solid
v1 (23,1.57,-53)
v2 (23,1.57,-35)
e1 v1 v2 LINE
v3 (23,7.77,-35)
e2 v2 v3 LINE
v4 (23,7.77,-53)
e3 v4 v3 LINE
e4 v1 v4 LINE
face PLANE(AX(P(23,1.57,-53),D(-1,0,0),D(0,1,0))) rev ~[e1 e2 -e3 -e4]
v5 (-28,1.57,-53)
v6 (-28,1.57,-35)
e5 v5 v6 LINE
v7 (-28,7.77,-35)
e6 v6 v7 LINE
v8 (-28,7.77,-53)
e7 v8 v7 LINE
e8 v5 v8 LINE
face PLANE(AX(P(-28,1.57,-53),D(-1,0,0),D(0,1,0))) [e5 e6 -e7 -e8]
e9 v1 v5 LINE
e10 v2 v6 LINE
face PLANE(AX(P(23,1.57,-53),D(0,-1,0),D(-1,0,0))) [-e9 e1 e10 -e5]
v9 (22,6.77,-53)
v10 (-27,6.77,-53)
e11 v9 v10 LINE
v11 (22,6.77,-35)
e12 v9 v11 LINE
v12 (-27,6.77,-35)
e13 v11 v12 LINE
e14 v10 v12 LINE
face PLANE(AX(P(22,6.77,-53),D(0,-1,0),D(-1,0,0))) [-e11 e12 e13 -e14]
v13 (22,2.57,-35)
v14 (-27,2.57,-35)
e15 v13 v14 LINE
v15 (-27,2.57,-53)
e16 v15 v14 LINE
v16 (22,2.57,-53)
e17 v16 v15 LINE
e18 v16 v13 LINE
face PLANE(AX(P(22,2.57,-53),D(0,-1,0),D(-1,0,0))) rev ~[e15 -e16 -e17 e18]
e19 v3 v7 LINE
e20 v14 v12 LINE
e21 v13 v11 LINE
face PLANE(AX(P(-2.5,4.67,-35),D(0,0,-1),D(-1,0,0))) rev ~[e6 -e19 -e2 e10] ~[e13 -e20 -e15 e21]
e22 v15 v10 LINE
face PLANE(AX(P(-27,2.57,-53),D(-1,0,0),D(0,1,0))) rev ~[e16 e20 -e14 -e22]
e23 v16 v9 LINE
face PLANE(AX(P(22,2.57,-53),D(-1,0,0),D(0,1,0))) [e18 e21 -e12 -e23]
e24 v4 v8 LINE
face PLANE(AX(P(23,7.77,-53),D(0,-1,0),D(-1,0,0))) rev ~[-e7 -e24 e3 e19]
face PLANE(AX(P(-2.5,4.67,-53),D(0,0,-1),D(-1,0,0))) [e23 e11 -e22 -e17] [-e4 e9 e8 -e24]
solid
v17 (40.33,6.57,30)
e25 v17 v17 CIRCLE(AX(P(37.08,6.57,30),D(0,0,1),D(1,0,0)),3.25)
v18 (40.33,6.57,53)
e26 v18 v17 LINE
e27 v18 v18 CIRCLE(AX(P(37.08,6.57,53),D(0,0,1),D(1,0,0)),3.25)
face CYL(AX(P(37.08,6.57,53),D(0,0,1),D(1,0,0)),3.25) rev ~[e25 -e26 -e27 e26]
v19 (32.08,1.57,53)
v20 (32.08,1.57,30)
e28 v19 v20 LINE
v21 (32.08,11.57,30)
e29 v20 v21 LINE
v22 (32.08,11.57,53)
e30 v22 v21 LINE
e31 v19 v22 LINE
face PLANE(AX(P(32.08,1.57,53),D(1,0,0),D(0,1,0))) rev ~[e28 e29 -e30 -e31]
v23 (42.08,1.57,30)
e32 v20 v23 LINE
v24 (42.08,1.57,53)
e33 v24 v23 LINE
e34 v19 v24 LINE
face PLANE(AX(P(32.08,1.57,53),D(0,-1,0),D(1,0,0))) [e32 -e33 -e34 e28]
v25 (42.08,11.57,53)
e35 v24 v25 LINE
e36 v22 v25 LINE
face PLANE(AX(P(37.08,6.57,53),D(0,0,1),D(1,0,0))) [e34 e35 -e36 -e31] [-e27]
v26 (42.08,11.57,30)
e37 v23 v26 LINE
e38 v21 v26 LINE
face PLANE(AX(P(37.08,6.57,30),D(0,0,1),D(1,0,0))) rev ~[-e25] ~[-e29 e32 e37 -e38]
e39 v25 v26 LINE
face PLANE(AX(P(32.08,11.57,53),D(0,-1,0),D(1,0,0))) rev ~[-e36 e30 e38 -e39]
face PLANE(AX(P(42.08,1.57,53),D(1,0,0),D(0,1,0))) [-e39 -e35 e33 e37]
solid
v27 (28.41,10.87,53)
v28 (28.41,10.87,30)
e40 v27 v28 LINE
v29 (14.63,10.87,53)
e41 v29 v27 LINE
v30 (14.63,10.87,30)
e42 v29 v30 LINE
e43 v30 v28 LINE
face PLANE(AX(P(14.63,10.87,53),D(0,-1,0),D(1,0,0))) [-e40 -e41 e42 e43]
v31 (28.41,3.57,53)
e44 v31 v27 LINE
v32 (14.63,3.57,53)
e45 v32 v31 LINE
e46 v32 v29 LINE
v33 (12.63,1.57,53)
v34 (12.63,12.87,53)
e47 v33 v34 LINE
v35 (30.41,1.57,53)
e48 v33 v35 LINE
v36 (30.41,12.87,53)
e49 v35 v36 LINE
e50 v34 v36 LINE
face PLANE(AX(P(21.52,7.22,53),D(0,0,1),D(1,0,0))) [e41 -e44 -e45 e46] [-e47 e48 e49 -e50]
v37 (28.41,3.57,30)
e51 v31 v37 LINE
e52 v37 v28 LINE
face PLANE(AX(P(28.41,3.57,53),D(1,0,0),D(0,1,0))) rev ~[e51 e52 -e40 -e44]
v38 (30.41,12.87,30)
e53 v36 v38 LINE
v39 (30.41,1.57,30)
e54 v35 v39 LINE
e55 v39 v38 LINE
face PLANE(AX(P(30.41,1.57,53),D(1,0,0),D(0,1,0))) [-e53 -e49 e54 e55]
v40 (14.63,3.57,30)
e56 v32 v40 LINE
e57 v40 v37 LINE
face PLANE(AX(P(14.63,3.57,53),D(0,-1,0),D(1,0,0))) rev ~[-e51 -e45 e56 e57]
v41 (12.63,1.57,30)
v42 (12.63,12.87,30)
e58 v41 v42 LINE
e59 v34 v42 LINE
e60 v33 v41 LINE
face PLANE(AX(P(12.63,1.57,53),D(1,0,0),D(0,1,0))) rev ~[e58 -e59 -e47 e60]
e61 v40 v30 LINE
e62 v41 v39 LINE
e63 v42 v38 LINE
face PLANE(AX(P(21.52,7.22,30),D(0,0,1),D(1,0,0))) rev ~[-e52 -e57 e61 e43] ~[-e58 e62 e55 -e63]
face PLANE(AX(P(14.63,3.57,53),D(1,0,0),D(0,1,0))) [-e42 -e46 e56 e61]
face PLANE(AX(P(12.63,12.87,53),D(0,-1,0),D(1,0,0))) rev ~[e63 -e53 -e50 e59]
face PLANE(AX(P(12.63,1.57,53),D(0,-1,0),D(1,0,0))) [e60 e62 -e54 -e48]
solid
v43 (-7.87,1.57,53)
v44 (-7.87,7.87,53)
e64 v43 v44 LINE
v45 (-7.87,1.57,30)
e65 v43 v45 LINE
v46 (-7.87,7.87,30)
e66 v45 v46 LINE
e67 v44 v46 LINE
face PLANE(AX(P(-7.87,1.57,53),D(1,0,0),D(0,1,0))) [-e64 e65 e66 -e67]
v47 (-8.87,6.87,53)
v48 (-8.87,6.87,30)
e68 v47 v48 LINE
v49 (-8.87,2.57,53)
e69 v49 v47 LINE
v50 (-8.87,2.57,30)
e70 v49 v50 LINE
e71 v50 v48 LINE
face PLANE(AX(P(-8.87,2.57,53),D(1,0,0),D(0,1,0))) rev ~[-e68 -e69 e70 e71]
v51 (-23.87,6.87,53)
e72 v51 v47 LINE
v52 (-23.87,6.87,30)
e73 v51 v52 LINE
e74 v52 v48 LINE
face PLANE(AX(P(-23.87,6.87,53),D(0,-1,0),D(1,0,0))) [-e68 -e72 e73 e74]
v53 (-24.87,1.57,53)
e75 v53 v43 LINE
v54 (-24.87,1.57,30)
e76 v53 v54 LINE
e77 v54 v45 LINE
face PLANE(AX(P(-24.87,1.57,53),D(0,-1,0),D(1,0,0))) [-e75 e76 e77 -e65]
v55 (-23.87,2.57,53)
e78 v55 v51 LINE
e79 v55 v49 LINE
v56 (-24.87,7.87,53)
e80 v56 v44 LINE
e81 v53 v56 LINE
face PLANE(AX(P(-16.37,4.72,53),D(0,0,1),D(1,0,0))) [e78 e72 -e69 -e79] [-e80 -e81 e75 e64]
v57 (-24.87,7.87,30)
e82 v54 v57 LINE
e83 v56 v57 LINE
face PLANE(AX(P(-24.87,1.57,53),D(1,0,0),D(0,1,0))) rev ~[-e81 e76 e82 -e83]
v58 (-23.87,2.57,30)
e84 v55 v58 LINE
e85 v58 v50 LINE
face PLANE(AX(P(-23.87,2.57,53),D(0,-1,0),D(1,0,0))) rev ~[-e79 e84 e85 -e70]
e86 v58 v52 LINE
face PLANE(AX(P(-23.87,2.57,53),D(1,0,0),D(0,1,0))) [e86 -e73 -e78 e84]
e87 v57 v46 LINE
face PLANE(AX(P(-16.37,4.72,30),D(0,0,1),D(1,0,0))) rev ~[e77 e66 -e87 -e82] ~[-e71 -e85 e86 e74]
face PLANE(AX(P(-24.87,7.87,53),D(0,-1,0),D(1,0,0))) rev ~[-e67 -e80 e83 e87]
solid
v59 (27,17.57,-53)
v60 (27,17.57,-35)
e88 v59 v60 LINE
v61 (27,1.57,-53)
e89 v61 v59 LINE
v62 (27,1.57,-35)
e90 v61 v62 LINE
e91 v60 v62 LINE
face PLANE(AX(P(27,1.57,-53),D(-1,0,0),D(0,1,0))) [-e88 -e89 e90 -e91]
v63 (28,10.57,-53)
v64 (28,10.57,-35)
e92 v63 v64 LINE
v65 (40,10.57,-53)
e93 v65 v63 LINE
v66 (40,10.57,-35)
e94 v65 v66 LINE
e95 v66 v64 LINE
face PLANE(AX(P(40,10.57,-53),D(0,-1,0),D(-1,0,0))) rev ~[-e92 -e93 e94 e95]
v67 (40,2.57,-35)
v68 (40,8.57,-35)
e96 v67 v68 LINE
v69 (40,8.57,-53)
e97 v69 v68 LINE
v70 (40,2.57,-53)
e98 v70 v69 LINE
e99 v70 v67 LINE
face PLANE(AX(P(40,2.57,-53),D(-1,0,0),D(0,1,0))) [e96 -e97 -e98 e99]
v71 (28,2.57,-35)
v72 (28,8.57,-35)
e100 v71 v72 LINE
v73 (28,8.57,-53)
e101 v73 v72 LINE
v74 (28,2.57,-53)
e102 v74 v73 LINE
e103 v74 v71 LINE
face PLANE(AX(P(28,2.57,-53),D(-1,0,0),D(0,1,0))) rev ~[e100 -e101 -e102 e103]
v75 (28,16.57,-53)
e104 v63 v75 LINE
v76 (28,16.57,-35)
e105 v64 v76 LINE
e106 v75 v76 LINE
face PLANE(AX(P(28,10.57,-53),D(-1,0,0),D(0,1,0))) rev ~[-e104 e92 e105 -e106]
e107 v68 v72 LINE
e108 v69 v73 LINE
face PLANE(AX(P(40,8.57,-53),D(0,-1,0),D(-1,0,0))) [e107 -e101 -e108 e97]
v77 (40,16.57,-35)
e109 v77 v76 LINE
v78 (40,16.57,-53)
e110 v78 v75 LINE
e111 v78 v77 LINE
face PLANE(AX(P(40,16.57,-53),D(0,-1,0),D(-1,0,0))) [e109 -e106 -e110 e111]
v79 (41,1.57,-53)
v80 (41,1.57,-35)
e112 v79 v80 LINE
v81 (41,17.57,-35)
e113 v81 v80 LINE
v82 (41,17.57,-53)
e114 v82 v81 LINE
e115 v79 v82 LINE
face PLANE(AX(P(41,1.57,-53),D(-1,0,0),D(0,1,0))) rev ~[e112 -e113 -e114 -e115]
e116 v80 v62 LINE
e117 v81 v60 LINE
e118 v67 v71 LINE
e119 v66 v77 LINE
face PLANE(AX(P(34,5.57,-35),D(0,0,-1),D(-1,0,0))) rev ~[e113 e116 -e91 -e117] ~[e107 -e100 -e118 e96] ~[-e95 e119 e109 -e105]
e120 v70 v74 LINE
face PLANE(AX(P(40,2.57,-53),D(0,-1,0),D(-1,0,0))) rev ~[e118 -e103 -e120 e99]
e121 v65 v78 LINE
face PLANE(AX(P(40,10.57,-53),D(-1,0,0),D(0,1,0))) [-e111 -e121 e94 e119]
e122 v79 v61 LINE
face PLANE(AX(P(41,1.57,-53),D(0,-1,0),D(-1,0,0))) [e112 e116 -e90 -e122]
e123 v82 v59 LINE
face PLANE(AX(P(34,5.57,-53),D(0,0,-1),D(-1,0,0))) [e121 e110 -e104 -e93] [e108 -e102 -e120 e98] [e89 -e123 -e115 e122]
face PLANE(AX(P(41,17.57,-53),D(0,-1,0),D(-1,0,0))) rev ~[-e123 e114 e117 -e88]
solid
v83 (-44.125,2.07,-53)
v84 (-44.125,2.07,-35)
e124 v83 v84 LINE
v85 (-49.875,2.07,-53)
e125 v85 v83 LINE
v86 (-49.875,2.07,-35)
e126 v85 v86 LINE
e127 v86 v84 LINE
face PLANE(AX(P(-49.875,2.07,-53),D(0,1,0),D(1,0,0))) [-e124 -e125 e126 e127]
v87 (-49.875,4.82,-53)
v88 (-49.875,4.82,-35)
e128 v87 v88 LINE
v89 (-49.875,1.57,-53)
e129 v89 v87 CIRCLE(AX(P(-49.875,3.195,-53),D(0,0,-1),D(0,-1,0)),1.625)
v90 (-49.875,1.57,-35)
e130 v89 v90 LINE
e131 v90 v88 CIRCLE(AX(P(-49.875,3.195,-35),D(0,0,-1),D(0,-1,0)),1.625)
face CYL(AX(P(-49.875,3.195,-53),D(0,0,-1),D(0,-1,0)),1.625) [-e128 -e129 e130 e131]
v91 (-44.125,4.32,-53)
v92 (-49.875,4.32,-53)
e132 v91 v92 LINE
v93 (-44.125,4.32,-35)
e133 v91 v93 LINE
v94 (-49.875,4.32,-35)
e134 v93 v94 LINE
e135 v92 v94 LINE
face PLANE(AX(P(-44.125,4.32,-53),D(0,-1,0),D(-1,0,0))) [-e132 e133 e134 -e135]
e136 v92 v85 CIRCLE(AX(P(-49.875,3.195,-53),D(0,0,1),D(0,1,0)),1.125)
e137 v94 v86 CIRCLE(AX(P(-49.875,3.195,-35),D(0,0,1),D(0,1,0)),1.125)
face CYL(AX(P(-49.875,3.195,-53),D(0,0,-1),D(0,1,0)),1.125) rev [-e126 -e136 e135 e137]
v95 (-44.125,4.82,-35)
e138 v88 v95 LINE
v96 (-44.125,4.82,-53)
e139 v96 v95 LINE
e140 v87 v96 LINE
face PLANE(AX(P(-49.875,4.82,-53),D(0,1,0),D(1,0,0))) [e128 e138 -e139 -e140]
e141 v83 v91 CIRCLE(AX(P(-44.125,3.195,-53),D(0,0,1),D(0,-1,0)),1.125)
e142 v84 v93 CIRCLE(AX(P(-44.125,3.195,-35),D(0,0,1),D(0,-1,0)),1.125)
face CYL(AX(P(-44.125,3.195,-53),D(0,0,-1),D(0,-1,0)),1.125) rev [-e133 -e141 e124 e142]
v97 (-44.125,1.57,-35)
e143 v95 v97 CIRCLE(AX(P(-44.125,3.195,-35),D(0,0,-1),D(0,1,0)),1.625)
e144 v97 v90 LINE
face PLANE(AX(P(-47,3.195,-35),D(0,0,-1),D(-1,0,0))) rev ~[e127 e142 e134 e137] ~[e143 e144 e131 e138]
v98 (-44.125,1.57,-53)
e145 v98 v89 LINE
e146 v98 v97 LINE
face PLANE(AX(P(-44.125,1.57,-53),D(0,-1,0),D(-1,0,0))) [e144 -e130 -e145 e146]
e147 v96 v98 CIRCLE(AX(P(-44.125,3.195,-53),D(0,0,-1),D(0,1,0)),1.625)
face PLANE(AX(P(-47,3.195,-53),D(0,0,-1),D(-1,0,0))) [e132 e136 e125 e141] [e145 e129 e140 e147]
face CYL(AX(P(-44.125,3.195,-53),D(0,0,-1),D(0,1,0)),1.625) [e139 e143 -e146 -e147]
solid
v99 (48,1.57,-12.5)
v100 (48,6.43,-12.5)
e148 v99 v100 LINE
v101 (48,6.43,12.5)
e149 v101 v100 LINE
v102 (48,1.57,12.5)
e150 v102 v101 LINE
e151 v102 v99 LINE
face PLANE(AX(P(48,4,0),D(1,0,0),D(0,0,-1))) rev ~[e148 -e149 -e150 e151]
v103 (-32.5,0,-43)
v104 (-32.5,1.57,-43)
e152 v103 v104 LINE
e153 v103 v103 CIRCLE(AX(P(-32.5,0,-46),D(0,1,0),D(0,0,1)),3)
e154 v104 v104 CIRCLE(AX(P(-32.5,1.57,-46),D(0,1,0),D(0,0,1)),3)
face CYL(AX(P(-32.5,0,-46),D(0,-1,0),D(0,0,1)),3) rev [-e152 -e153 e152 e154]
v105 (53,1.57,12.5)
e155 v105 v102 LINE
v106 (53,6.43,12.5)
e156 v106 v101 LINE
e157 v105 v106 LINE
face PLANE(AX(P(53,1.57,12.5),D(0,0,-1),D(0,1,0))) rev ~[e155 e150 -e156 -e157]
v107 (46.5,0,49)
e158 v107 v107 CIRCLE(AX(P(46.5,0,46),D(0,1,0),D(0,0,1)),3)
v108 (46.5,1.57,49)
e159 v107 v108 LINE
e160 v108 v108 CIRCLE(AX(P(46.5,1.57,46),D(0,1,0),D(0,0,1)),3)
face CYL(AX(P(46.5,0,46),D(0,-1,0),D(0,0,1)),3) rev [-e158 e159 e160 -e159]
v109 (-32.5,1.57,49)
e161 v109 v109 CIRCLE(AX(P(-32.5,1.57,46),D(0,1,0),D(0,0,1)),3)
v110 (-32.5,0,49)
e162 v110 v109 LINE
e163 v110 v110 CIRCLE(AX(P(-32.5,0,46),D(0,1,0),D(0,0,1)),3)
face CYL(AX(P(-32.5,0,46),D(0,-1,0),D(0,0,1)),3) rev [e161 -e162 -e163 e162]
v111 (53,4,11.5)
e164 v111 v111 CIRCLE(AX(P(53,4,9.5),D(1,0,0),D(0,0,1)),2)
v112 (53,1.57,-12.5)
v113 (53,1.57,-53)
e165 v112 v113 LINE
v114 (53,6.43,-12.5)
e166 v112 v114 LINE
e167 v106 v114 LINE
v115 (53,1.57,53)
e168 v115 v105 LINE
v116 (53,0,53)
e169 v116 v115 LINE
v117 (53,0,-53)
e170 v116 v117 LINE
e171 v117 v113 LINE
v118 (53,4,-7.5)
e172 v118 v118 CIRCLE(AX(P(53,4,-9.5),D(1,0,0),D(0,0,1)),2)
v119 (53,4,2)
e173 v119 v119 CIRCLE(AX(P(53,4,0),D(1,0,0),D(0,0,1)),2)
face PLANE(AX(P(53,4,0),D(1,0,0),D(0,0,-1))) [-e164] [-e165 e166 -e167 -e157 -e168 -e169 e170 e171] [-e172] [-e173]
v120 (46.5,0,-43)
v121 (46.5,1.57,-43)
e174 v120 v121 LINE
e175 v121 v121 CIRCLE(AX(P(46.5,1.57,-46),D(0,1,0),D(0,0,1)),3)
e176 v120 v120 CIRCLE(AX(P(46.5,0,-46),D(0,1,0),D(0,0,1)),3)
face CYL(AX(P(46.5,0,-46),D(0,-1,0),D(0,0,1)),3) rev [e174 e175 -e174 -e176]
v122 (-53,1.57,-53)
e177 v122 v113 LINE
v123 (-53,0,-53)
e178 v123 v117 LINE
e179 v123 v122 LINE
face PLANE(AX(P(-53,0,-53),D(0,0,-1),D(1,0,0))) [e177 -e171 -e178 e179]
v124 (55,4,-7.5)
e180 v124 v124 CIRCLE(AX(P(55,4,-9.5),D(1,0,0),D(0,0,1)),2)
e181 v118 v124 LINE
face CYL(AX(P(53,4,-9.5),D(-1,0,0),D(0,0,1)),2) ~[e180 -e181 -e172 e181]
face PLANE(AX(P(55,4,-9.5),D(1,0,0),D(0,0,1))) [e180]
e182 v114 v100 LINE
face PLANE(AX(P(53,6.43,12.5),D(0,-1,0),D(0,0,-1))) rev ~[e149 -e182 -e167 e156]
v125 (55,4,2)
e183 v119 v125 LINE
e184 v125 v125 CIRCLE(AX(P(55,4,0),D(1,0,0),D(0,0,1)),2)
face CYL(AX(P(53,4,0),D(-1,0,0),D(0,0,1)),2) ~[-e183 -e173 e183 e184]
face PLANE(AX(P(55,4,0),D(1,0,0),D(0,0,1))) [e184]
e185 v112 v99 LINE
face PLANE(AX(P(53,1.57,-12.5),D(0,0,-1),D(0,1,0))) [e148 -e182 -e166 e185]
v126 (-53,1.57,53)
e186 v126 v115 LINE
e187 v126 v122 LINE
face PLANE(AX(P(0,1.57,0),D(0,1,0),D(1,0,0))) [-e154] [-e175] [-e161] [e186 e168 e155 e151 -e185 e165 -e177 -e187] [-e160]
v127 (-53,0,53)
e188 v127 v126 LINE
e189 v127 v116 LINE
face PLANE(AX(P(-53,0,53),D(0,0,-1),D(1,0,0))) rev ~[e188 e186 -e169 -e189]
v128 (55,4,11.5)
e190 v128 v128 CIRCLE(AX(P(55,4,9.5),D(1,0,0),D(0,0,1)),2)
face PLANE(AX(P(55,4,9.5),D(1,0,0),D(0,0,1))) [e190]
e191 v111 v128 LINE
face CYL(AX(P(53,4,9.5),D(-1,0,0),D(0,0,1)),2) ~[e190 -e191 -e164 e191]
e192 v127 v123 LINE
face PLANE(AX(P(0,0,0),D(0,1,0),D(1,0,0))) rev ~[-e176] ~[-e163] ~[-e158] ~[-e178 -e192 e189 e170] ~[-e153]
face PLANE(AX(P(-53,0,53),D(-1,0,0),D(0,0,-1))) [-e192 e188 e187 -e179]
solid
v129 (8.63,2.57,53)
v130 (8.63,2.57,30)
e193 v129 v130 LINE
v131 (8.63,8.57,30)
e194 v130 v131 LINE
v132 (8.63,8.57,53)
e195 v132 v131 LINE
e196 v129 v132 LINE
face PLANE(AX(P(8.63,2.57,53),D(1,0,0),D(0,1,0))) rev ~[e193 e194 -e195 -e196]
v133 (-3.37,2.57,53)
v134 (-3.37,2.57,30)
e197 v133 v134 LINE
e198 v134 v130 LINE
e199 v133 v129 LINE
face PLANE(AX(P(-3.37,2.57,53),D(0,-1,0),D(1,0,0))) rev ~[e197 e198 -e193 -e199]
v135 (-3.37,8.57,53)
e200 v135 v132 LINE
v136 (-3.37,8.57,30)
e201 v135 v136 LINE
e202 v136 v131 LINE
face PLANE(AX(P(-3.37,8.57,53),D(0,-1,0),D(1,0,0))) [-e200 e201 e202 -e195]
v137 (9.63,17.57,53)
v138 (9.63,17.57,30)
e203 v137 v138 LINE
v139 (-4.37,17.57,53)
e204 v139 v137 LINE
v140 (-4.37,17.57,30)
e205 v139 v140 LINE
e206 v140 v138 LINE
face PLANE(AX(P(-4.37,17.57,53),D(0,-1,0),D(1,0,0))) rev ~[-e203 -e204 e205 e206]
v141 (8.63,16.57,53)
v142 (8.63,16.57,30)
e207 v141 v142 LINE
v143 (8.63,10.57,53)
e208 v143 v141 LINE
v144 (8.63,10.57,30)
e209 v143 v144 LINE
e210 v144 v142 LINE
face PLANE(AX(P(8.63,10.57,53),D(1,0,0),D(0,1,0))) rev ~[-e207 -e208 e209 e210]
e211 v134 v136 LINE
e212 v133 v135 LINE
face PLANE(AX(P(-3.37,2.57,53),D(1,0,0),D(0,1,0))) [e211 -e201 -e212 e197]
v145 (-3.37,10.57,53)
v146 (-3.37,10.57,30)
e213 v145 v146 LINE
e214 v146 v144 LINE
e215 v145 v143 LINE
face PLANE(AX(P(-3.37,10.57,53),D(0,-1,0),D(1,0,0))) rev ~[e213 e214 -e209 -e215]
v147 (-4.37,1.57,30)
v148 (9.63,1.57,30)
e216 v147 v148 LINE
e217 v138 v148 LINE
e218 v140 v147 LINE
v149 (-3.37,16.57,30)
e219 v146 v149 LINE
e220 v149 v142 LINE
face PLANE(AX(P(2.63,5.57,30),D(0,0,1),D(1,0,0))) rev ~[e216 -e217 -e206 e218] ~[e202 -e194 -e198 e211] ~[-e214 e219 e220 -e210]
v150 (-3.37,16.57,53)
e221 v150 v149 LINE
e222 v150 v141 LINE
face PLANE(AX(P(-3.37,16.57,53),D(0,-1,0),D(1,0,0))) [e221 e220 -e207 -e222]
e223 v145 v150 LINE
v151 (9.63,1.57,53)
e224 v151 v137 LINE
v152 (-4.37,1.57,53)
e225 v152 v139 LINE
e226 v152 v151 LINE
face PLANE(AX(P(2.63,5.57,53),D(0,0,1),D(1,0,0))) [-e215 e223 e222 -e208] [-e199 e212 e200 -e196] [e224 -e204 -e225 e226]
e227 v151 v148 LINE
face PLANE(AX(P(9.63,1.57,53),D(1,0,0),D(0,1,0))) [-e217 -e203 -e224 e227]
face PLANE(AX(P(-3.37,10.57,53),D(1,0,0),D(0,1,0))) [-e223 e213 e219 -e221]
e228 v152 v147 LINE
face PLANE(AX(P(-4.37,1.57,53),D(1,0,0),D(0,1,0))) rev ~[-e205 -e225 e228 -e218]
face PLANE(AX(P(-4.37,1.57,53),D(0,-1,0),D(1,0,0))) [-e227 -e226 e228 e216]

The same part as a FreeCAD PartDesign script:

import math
import FreeCAD as App
import Part
import Sketcher
Q = App.Units.Quantity

doc = App.newDocument("Part")
params = doc.addObject("Spreadsheet::Sheet", "Params")
for row, (alias, value) in enumerate([
    ("sketch1_diameter", "6 mm"),
    ("sketch1_width", "106 mm"),
    ("pad1_length", "1.57 mm"),
    ("sketch2_height", "25 mm"),
    ("sketch2_width", "4.86 mm"),
    ("pad2_length", "5 mm"),
    ("sketch3_diameter", "4 mm"),
    ("pad3_length", "2 mm"),
    ("sketch4_diameter", "6.5 mm"),
    ("sketch4_width", "17 mm"),
    ("sketch4_width2", "15 mm"),
    ("sketch4_width3", "14 mm"),
    ("sketch4_width4", "12 mm"),
    ("pad4_length", "23 mm"),
    ("sketch5_width", "14 mm"),
    ("sketch5_width2", "12 mm"),
    ("sketch5_width3", "51 mm"),
    ("sketch5_width4", "49 mm"),
    ("sketch5_height", "16 mm"),
    ("pad5_length", "18 mm"),
], start=1):
    params.set(f"A{row}", alias)
    params.set(f"B{row}", "=" + value)
    params.setAlias(f"B{row}", alias)

body = doc.addObject("PartDesign::Body", "Body")

# Sketch on XZ plane
sketch1 = body.newObject("Sketcher::SketchObject", "Sketch")
sketch1.AttachmentSupport = (doc.getObject("XZ_Plane"), [""])
sketch1.MapMode = "FlatFace"
sketch1.addGeometry(Part.LineSegment(App.Vector(-53, -53, 0), App.Vector(-53, 53, 0)), False)
sketch1.addGeometry(Part.LineSegment(App.Vector(-53, 53, 0), App.Vector(53, 53, 0)), False)
sketch1.addGeometry(Part.LineSegment(App.Vector(53, 53, 0), App.Vector(53, -53, 0)), False)
sketch1.addGeometry(Part.LineSegment(App.Vector(53, -53, 0), App.Vector(-53, -53, 0)), False)
sketch1.addGeometry(Part.Circle(App.Vector(-32.5, 46, 0), App.Vector(0, 0, 1), 3), False)
sketch1.addGeometry(Part.Circle(App.Vector(46.5, 46, 0), App.Vector(0, 0, 1), 3), False)
sketch1.addGeometry(Part.Circle(App.Vector(-32.5, -46, 0), App.Vector(0, 0, 1), 3), False)
sketch1.addGeometry(Part.Circle(App.Vector(46.5, -46, 0), App.Vector(0, 0, 1), 3), False)
sketch1.addConstraint(Sketcher.Constraint("Coincident", 0, 2, 1, 1))
sketch1.addConstraint(Sketcher.Constraint("Coincident", 1, 2, 2, 1))
sketch1.addConstraint(Sketcher.Constraint("Coincident", 2, 2, 3, 1))
sketch1.addConstraint(Sketcher.Constraint("Coincident", 3, 2, 0, 1))
sketch1.addConstraint(Sketcher.Constraint("Vertical", 0))
sketch1.addConstraint(Sketcher.Constraint("Horizontal", 1))
sketch1.addConstraint(Sketcher.Constraint("Vertical", 2))
sketch1.addConstraint(Sketcher.Constraint("Horizontal", 3))
sketch1.addConstraint(Sketcher.Constraint("Equal", 4, 5))
sketch1.addConstraint(Sketcher.Constraint("Equal", 5, 6))
sketch1.addConstraint(Sketcher.Constraint("Equal", 6, 7))
sketch1.addConstraint(Sketcher.Constraint("Symmetric", 0, 2, 2, 2, -1, 1))
sketch1.addConstraint(Sketcher.Constraint("Symmetric", 4, 3, 6, 3, -1))
sketch1.addConstraint(Sketcher.Constraint("Symmetric", 5, 3, 7, 3, -1))
sketch1.addConstraint(Sketcher.Constraint("Horizontal", 4, 3, 5, 3))
sketch1.addConstraint(Sketcher.Constraint("Equal", 3, 0))
sketch1.addConstraint(Sketcher.Constraint("Diameter", 4, Q("6 mm")))
sketch1.addConstraint(Sketcher.Constraint("DistanceX", 1, 1, 1, 2, Q("106 mm")))
sketch1.addConstraint(Sketcher.Constraint("DistanceY", -1, 1, 4, 3, Q("46 mm")))
sketch1.addConstraint(Sketcher.Constraint("DistanceX", 4, 3, 5, 3, Q("79 mm")))
sketch1.addConstraint(Sketcher.Constraint("DistanceX", 4, 3, -1, 1, Q("32.5 mm")))
sketch1.setExpression("Constraints[16]", "Params.sketch1_diameter")
sketch1.setExpression("Constraints[17]", "Params.sketch1_width")
pad1 = body.newObject("PartDesign::Pad", "Pad")
pad1.Profile = sketch1
pad1.setExpression("Length", "Params.pad1_length")
pad1.Reversed = True

# Sketch on YZ plane
sketch2 = body.newObject("Sketcher::SketchObject", "Sketch001")
sketch2.AttachmentSupport = (doc.getObject("YZ_Plane"), [""])
sketch2.MapMode = "FlatFace"
sketch2.AttachmentOffset = App.Placement(App.Vector(0, 0, 53), App.Rotation())
sketch2.addGeometry(Part.LineSegment(App.Vector(6.4, 12.5, 0), App.Vector(1.6, 12.5, 0)), False)
sketch2.addGeometry(Part.LineSegment(App.Vector(1.6, 12.5, 0), App.Vector(1.6, -12.5, 0)), False)
sketch2.addGeometry(Part.LineSegment(App.Vector(1.6, -12.5, 0), App.Vector(6.4, -12.5, 0)), False)
sketch2.addGeometry(Part.LineSegment(App.Vector(6.4, -12.5, 0), App.Vector(6.4, 12.5, 0)), False)
sketch2.addConstraint(Sketcher.Constraint("Coincident", 0, 2, 1, 1))
sketch2.addConstraint(Sketcher.Constraint("Coincident", 1, 2, 2, 1))
sketch2.addConstraint(Sketcher.Constraint("Coincident", 2, 2, 3, 1))
sketch2.addConstraint(Sketcher.Constraint("Coincident", 3, 2, 0, 1))
sketch2.addConstraint(Sketcher.Constraint("Horizontal", 0))
sketch2.addConstraint(Sketcher.Constraint("Vertical", 1))
sketch2.addConstraint(Sketcher.Constraint("Horizontal", 2))
sketch2.addConstraint(Sketcher.Constraint("Vertical", 3))
sketch2.addConstraint(Sketcher.Constraint("DistanceY", 1, 2, 1, 1, Q("25 mm")))
sketch2.addConstraint(Sketcher.Constraint("DistanceX", 0, 2, 0, 1, Q("4.86 mm")))
sketch2.addConstraint(Sketcher.Constraint("DistanceY", -1, 1, 0, 2, Q("12.5 mm")))
sketch2.addConstraint(Sketcher.Constraint("DistanceX", -1, 1, 0, 2, Q("1.57 mm")))
sketch2.setExpression("Constraints[8]", "Params.sketch2_height")
sketch2.setExpression("Constraints[9]", "Params.sketch2_width")
pad2 = body.newObject("PartDesign::Pad", "Pad001")
pad2.Profile = sketch2
pad2.setExpression("Length", "Params.pad2_length")
pad2.Reversed = True

# Sketch on YZ plane
sketch3 = body.newObject("Sketcher::SketchObject", "Sketch002")
sketch3.AttachmentSupport = (doc.getObject("YZ_Plane"), [""])
sketch3.MapMode = "FlatFace"
sketch3.AttachmentOffset = App.Placement(App.Vector(0, 0, 53), App.Rotation())
sketch3.addGeometry(Part.Circle(App.Vector(4, 9.5, 0), App.Vector(0, 0, 1), 2), False)
sketch3.addGeometry(Part.Circle(App.Vector(4, 0, 0), App.Vector(0, 0, 1), 2), False)
sketch3.addGeometry(Part.Circle(App.Vector(4, -9.5, 0), App.Vector(0, 0, 1), 2), False)
sketch3.addConstraint(Sketcher.Constraint("Equal", 0, 1))
sketch3.addConstraint(Sketcher.Constraint("Equal", 1, 2))
sketch3.addConstraint(Sketcher.Constraint("Symmetric", 0, 3, 2, 3, -1))
sketch3.addConstraint(Sketcher.Constraint("PointOnObject", 1, 3, -1))
sketch3.addConstraint(Sketcher.Constraint("Vertical", 0, 3, 1, 3))
sketch3.addConstraint(Sketcher.Constraint("Diameter", 0, Q("4 mm")))
sketch3.addConstraint(Sketcher.Constraint("DistanceX", -1, 1, 0, 3, Q("4 mm")))
sketch3.addConstraint(Sketcher.Constraint("DistanceY", 2, 3, 0, 3, Q("19 mm")))
sketch3.setExpression("Constraints[5]", "Params.sketch3_diameter")
pad3 = body.newObject("PartDesign::Pad", "Pad002")
pad3.Profile = sketch3
pad3.setExpression("Length", "Params.pad3_length")
body2 = doc.addObject("PartDesign::Body", "Body001")
body2.AllowCompound = True

# Sketch on XY plane
sketch4 = body2.newObject("Sketcher::SketchObject", "Sketch003")
sketch4.AttachmentSupport = (doc.getObject("XY_Plane001"), [""])
sketch4.MapMode = "FlatFace"
sketch4.AttachmentOffset = App.Placement(App.Vector(0, 0, 53), App.Rotation())
sketch4.addGeometry(Part.LineSegment(App.Vector(-24.9, 7.9, 0), App.Vector(-24.9, 1.6, 0)), False)
sketch4.addGeometry(Part.LineSegment(App.Vector(-24.9, 1.6, 0), App.Vector(-7.9, 1.6, 0)), False)
sketch4.addGeometry(Part.LineSegment(App.Vector(-7.9, 1.6, 0), App.Vector(-7.9, 7.9, 0)), False)
sketch4.addGeometry(Part.LineSegment(App.Vector(-7.9, 7.9, 0), App.Vector(-24.9, 7.9, 0)), False)
sketch4.addGeometry(Part.LineSegment(App.Vector(-8.9, 2.6, 0), App.Vector(-23.9, 2.6, 0)), False)
sketch4.addGeometry(Part.LineSegment(App.Vector(-23.9, 2.6, 0), App.Vector(-23.9, 6.9, 0)), False)
sketch4.addGeometry(Part.LineSegment(App.Vector(-23.9, 6.9, 0), App.Vector(-8.9, 6.9, 0)), False)
sketch4.addGeometry(Part.LineSegment(App.Vector(-8.9, 6.9, 0), App.Vector(-8.9, 2.6, 0)), False)
sketch4.addGeometry(Part.LineSegment(App.Vector(-4.4, 1.6, 0), App.Vector(9.6, 1.6, 0)), False)
sketch4.addGeometry(Part.LineSegment(App.Vector(9.6, 1.6, 0), App.Vector(9.6, 17.6, 0)), False)
sketch4.addGeometry(Part.LineSegment(App.Vector(9.6, 17.6, 0), App.Vector(-4.4, 17.6, 0)), False)
sketch4.addGeometry(Part.LineSegment(App.Vector(-4.4, 17.6, 0), App.Vector(-4.4, 1.6, 0)), False)
sketch4.addGeometry(Part.LineSegment(App.Vector(8.6, 2.6, 0), App.Vector(-3.4, 2.6, 0)), False)
sketch4.addGeometry(Part.LineSegment(App.Vector(-3.4, 2.6, 0), App.Vector(-3.4, 8.6, 0)), False)
sketch4.addGeometry(Part.LineSegment(App.Vector(-3.4, 8.6, 0), App.Vector(8.6, 8.6, 0)), False)
sketch4.addGeometry(Part.LineSegment(App.Vector(8.6, 8.6, 0), App.Vector(8.6, 2.6, 0)), False)
sketch4.addGeometry(Part.LineSegment(App.Vector(-3.4, 10.6, 0), App.Vector(-3.4, 16.6, 0)), False)
sketch4.addGeometry(Part.LineSegment(App.Vector(-3.4, 16.6, 0), App.Vector(8.6, 16.6, 0)), False)
sketch4.addGeometry(Part.LineSegment(App.Vector(8.6, 16.6, 0), App.Vector(8.6, 10.6, 0)), False)
sketch4.addGeometry(Part.LineSegment(App.Vector(8.6, 10.6, 0), App.Vector(-3.4, 10.6, 0)), False)
sketch4.addGeometry(Part.LineSegment(App.Vector(12.6, 12.9, 0), App.Vector(12.6, 1.6, 0)), False)
sketch4.addGeometry(Part.LineSegment(App.Vector(12.6, 1.6, 0), App.Vector(30.4, 1.6, 0)), False)
sketch4.addGeometry(Part.LineSegment(App.Vector(30.4, 1.6, 0), App.Vector(30.4, 12.9, 0)), False)
sketch4.addGeometry(Part.LineSegment(App.Vector(30.4, 12.9, 0), App.Vector(12.6, 12.9, 0)), False)
sketch4.addGeometry(Part.LineSegment(App.Vector(28.4, 3.6, 0), App.Vector(14.6, 3.6, 0)), False)
sketch4.addGeometry(Part.LineSegment(App.Vector(14.6, 3.6, 0), App.Vector(14.6, 10.9, 0)), False)
sketch4.addGeometry(Part.LineSegment(App.Vector(14.6, 10.9, 0), App.Vector(28.4, 10.9, 0)), False)
sketch4.addGeometry(Part.LineSegment(App.Vector(28.4, 10.9, 0), App.Vector(28.4, 3.6, 0)), False)
sketch4.addGeometry(Part.LineSegment(App.Vector(32.1, 11.6, 0), App.Vector(32.1, 1.6, 0)), False)
sketch4.addGeometry(Part.LineSegment(App.Vector(32.1, 1.6, 0), App.Vector(42.1, 1.6, 0)), False)
sketch4.addGeometry(Part.LineSegment(App.Vector(42.1, 1.6, 0), App.Vector(42.1, 11.6, 0)), False)
sketch4.addGeometry(Part.LineSegment(App.Vector(42.1, 11.6, 0), App.Vector(32.1, 11.6, 0)), False)
sketch4.addGeometry(Part.Circle(App.Vector(37.1, 6.6, 0), App.Vector(0, 0, 1), 3.2), False)
sketch4.addConstraint(Sketcher.Constraint("Coincident", 0, 2, 1, 1))
sketch4.addConstraint(Sketcher.Constraint("Coincident", 1, 2, 2, 1))
sketch4.addConstraint(Sketcher.Constraint("Coincident", 2, 2, 3, 1))
sketch4.addConstraint(Sketcher.Constraint("Coincident", 3, 2, 0, 1))
sketch4.addConstraint(Sketcher.Constraint("Coincident", 4, 2, 5, 1))
sketch4.addConstraint(Sketcher.Constraint("Coincident", 5, 2, 6, 1))
sketch4.addConstraint(Sketcher.Constraint("Coincident", 6, 2, 7, 1))
sketch4.addConstraint(Sketcher.Constraint("Coincident", 7, 2, 4, 1))
sketch4.addConstraint(Sketcher.Constraint("Coincident", 8, 2, 9, 1))
sketch4.addConstraint(Sketcher.Constraint("Coincident", 9, 2, 10, 1))
sketch4.addConstraint(Sketcher.Constraint("Coincident", 10, 2, 11, 1))
sketch4.addConstraint(Sketcher.Constraint("Coincident", 11, 2, 8, 1))
sketch4.addConstraint(Sketcher.Constraint("Coincident", 12, 2, 13, 1))
sketch4.addConstraint(Sketcher.Constraint("Coincident", 13, 2, 14, 1))
sketch4.addConstraint(Sketcher.Constraint("Coincident", 14, 2, 15, 1))
sketch4.addConstraint(Sketcher.Constraint("Coincident", 15, 2, 12, 1))
sketch4.addConstraint(Sketcher.Constraint("Coincident", 16, 2, 17, 1))
sketch4.addConstraint(Sketcher.Constraint("Coincident", 17, 2, 18, 1))
sketch4.addConstraint(Sketcher.Constraint("Coincident", 18, 2, 19, 1))
sketch4.addConstraint(Sketcher.Constraint("Coincident", 19, 2, 16, 1))
sketch4.addConstraint(Sketcher.Constraint("Coincident", 20, 2, 21, 1))
sketch4.addConstraint(Sketcher.Constraint("Coincident", 21, 2, 22, 1))
sketch4.addConstraint(Sketcher.Constraint("Coincident", 22, 2, 23, 1))
sketch4.addConstraint(Sketcher.Constraint("Coincident", 23, 2, 20, 1))
sketch4.addConstraint(Sketcher.Constraint("Coincident", 24, 2, 25, 1))
sketch4.addConstraint(Sketcher.Constraint("Coincident", 25, 2, 26, 1))
sketch4.addConstraint(Sketcher.Constraint("Coincident", 26, 2, 27, 1))
sketch4.addConstraint(Sketcher.Constraint("Coincident", 27, 2, 24, 1))
sketch4.addConstraint(Sketcher.Constraint("Coincident", 28, 2, 29, 1))
sketch4.addConstraint(Sketcher.Constraint("Coincident", 29, 2, 30, 1))
sketch4.addConstraint(Sketcher.Constraint("Coincident", 30, 2, 31, 1))
sketch4.addConstraint(Sketcher.Constraint("Coincident", 31, 2, 28, 1))
sketch4.addConstraint(Sketcher.Constraint("Vertical", 0))
sketch4.addConstraint(Sketcher.Constraint("Horizontal", 1))
sketch4.addConstraint(Sketcher.Constraint("Vertical", 2))
sketch4.addConstraint(Sketcher.Constraint("Horizontal", 3))
sketch4.addConstraint(Sketcher.Constraint("Horizontal", 4))
sketch4.addConstraint(Sketcher.Constraint("Vertical", 5))
sketch4.addConstraint(Sketcher.Constraint("Horizontal", 6))
sketch4.addConstraint(Sketcher.Constraint("Vertical", 7))
sketch4.addConstraint(Sketcher.Constraint("Horizontal", 8))
sketch4.addConstraint(Sketcher.Constraint("Vertical", 9))
sketch4.addConstraint(Sketcher.Constraint("Horizontal", 10))
sketch4.addConstraint(Sketcher.Constraint("Vertical", 11))
sketch4.addConstraint(Sketcher.Constraint("Horizontal", 12))
sketch4.addConstraint(Sketcher.Constraint("Vertical", 13))
sketch4.addConstraint(Sketcher.Constraint("Horizontal", 14))
sketch4.addConstraint(Sketcher.Constraint("Vertical", 15))
sketch4.addConstraint(Sketcher.Constraint("Vertical", 16))
sketch4.addConstraint(Sketcher.Constraint("Horizontal", 17))
sketch4.addConstraint(Sketcher.Constraint("Vertical", 18))
sketch4.addConstraint(Sketcher.Constraint("Horizontal", 19))
sketch4.addConstraint(Sketcher.Constraint("Vertical", 20))
sketch4.addConstraint(Sketcher.Constraint("Horizontal", 21))
sketch4.addConstraint(Sketcher.Constraint("Vertical", 22))
sketch4.addConstraint(Sketcher.Constraint("Horizontal", 23))
sketch4.addConstraint(Sketcher.Constraint("Horizontal", 24))
sketch4.addConstraint(Sketcher.Constraint("Vertical", 25))
sketch4.addConstraint(Sketcher.Constraint("Horizontal", 26))
sketch4.addConstraint(Sketcher.Constraint("Vertical", 27))
sketch4.addConstraint(Sketcher.Constraint("Vertical", 28))
sketch4.addConstraint(Sketcher.Constraint("Horizontal", 29))
sketch4.addConstraint(Sketcher.Constraint("Vertical", 30))
sketch4.addConstraint(Sketcher.Constraint("Horizontal", 31))
sketch4.addConstraint(Sketcher.Constraint("Horizontal", 1, 2, 8, 2))
sketch4.addConstraint(Sketcher.Constraint("Horizontal", 7, 2, 12, 2))
sketch4.addConstraint(Sketcher.Constraint("Horizontal", 11, 2, 20, 2))
sketch4.addConstraint(Sketcher.Constraint("Horizontal", 21, 2, 28, 2))
sketch4.addConstraint(Sketcher.Constraint("Vertical", 13, 2, 16, 2))
sketch4.addConstraint(Sketcher.Constraint("Vertical", 15, 2, 17, 2))
sketch4.addConstraint(Sketcher.Constraint("Equal", 15, 16))
sketch4.addConstraint(Sketcher.Constraint("Equal", 31, 28))
sketch4.addConstraint(Sketcher.Constraint("Diameter", 32, Q("6.5 mm")))
sketch4.addConstraint(Sketcher.Constraint("DistanceX", 1, 1, 1, 2, Q("17 mm")))
sketch4.addConstraint(Sketcher.Constraint("DistanceX", 4, 2, 4, 1, Q("15 mm")))
sketch4.addConstraint(Sketcher.Constraint("DistanceX", 8, 1, 8, 2, Q("14 mm")))
sketch4.addConstraint(Sketcher.Constraint("DistanceX", 12, 2, 12, 1, Q("12 mm")))
sketch4.addConstraint(Sketcher.Constraint("DistanceX", 29, 1, 29, 2, Q("10 mm")))
sketch4.addConstraint(Sketcher.Constraint("DistanceY", 9, 1, 9, 2, Q("16 mm")))
sketch4.addConstraint(Sketcher.Constraint("DistanceY", 13, 1, 13, 2, Q("6 mm")))
sketch4.addConstraint(Sketcher.Constraint("DistanceY", 0, 2, 0, 1, Q("6.3 mm")))
sketch4.addConstraint(Sketcher.Constraint("DistanceY", 5, 1, 5, 2, Q("4.3 mm")))
sketch4.addConstraint(Sketcher.Constraint("DistanceY", 20, 2, 20, 1, Q("11.3 mm")))
sketch4.addConstraint(Sketcher.Constraint("DistanceY", 25, 1, 25, 2, Q("7.3 mm")))
sketch4.addConstraint(Sketcher.Constraint("DistanceY", 0, 2, 32, 3, Q("5 mm")))
sketch4.addConstraint(Sketcher.Constraint("DistanceX", 0, 2, 4, 2, Q("1 mm")))
sketch4.addConstraint(Sketcher.Constraint("DistanceY", 0, 2, 4, 2, Q("1 mm")))
sketch4.addConstraint(Sketcher.Constraint("DistanceX", 11, 2, 12, 2, Q("1 mm")))
sketch4.addConstraint(Sketcher.Constraint("DistanceY", 16, 2, 10, 2, Q("1 mm")))
sketch4.addConstraint(Sketcher.Constraint("DistanceX", 8, 2, 20, 2, Q("3 mm")))
sketch4.addConstraint(Sketcher.Constraint("DistanceX", 20, 2, 24, 2, Q("2 mm")))
sketch4.addConstraint(Sketcher.Constraint("DistanceY", 20, 2, 24, 2, Q("2 mm")))
sketch4.addConstraint(Sketcher.Constraint("DistanceX", 26, 2, 22, 2, Q("2 mm")))
sketch4.addConstraint(Sketcher.Constraint("DistanceX", 28, 2, 32, 3, Q("5 mm")))
sketch4.addConstraint(Sketcher.Constraint("DistanceX", 21, 1, 21, 2, Q("17.78 mm")))
sketch4.addConstraint(Sketcher.Constraint("DistanceX", 1, 2, 8, 2, Q("17.5 mm")))
sketch4.addConstraint(Sketcher.Constraint("DistanceX", -1, 1, 32, 3, Q("37.08 mm")))
sketch4.addConstraint(Sketcher.Constraint("DistanceY", -1, 1, 32, 3, Q("6.57 mm")))
sketch4.addConstraint(Sketcher.Constraint("DistanceX", 0, 2, -1, 1, Q("24.87 mm")))
sketch4.setExpression("Constraints[72]", "Params.sketch4_diameter")
sketch4.setExpression("Constraints[73]", "Params.sketch4_width")
sketch4.setExpression("Constraints[74]", "Params.sketch4_width2")
sketch4.setExpression("Constraints[75]", "Params.sketch4_width3")
sketch4.setExpression("Constraints[76]", "Params.sketch4_width4")
pad4 = body2.newObject("PartDesign::Pad", "Pad003")
pad4.Profile = sketch4
pad4.setExpression("Length", "Params.pad4_length")
pad4.Reversed = True
body3 = doc.addObject("PartDesign::Body", "Body002")
body3.AllowCompound = True

# Sketch on XY plane
sketch5 = body3.newObject("Sketcher::SketchObject", "Sketch004")
sketch5.AttachmentSupport = (doc.getObject("XY_Plane002"), [""])
sketch5.MapMode = "FlatFace"
sketch5.AttachmentOffset = App.Placement(App.Vector(0, 0, -53), App.Rotation())
sketch5.addGeometry(Part.LineSegment(App.Vector(41, 1.6, 0), App.Vector(27, 1.6, 0)), False)
sketch5.addGeometry(Part.LineSegment(App.Vector(27, 1.6, 0), App.Vector(27, 17.6, 0)), False)
sketch5.addGeometry(Part.LineSegment(App.Vector(27, 17.6, 0), App.Vector(41, 17.6, 0)), False)
sketch5.addGeometry(Part.LineSegment(App.Vector(41, 17.6, 0), App.Vector(41, 1.6, 0)), False)
sketch5.addGeometry(Part.LineSegment(App.Vector(28, 2.6, 0), App.Vector(40, 2.6, 0)), False)
sketch5.addGeometry(Part.LineSegment(App.Vector(40, 2.6, 0), App.Vector(40, 8.6, 0)), False)
sketch5.addGeometry(Part.LineSegment(App.Vector(40, 8.6, 0), App.Vector(28, 8.6, 0)), False)
sketch5.addGeometry(Part.LineSegment(App.Vector(28, 8.6, 0), App.Vector(28, 2.6, 0)), False)
sketch5.addGeometry(Part.LineSegment(App.Vector(40, 10.6, 0), App.Vector(40, 16.6, 0)), False)
sketch5.addGeometry(Part.LineSegment(App.Vector(40, 16.6, 0), App.Vector(28, 16.6, 0)), False)
sketch5.addGeometry(Part.LineSegment(App.Vector(28, 16.6, 0), App.Vector(28, 10.6, 0)), False)
sketch5.addGeometry(Part.LineSegment(App.Vector(28, 10.6, 0), App.Vector(40, 10.6, 0)), False)
sketch5.addGeometry(Part.LineSegment(App.Vector(23, 7.8, 0), App.Vector(23, 1.6, 0)), False)
sketch5.addGeometry(Part.LineSegment(App.Vector(23, 1.6, 0), App.Vector(-28, 1.6, 0)), False)
sketch5.addGeometry(Part.LineSegment(App.Vector(-28, 1.6, 0), App.Vector(-28, 7.8, 0)), False)
sketch5.addGeometry(Part.LineSegment(App.Vector(-28, 7.8, 0), App.Vector(23, 7.8, 0)), False)
sketch5.addGeometry(Part.LineSegment(App.Vector(-27, 2.6, 0), App.Vector(22, 2.6, 0)), False)
sketch5.addGeometry(Part.LineSegment(App.Vector(22, 2.6, 0), App.Vector(22, 6.8, 0)), False)
sketch5.addGeometry(Part.LineSegment(App.Vector(22, 6.8, 0), App.Vector(-27, 6.8, 0)), False)
sketch5.addGeometry(Part.LineSegment(App.Vector(-27, 6.8, 0), App.Vector(-27, 2.6, 0)), False)
sketch5.addGeometry(Part.ArcOfCircle(Part.Circle(App.Vector(-44.1, 3.2, 0), App.Vector(0, 0, 1), 1.6), math.radians(-90), math.radians(90)), False)
sketch5.addGeometry(Part.LineSegment(App.Vector(-44.1, 1.6, 0), App.Vector(-49.9, 1.6, 0)), False)
sketch5.addGeometry(Part.ArcOfCircle(Part.Circle(App.Vector(-49.9, 3.2, 0), App.Vector(0, 0, 1), 1.6), math.radians(90), math.radians(270)), False)
sketch5.addGeometry(Part.LineSegment(App.Vector(-49.9, 4.8, 0), App.Vector(-44.1, 4.8, 0)), False)
sketch5.addGeometry(Part.LineSegment(App.Vector(-49.9, 2.1, 0), App.Vector(-44.1, 2.1, 0)), False)
sketch5.addGeometry(Part.ArcOfCircle(Part.Circle(App.Vector(-44.1, 3.2, 0), App.Vector(0, 0, 1), 1.1), math.radians(-90), math.radians(90)), False)
sketch5.addGeometry(Part.LineSegment(App.Vector(-44.1, 4.3, 0), App.Vector(-49.9, 4.3, 0)), False)
sketch5.addGeometry(Part.ArcOfCircle(Part.Circle(App.Vector(-49.9, 3.2, 0), App.Vector(0, 0, 1), 1.1), math.radians(90), math.radians(270)), False)
sketch5.addConstraint(Sketcher.Constraint("Coincident", 0, 2, 1, 1))
sketch5.addConstraint(Sketcher.Constraint("Coincident", 1, 2, 2, 1))
sketch5.addConstraint(Sketcher.Constraint("Coincident", 2, 2, 3, 1))
sketch5.addConstraint(Sketcher.Constraint("Coincident", 3, 2, 0, 1))
sketch5.addConstraint(Sketcher.Constraint("Coincident", 4, 2, 5, 1))
sketch5.addConstraint(Sketcher.Constraint("Coincident", 5, 2, 6, 1))
sketch5.addConstraint(Sketcher.Constraint("Coincident", 6, 2, 7, 1))
sketch5.addConstraint(Sketcher.Constraint("Coincident", 7, 2, 4, 1))
sketch5.addConstraint(Sketcher.Constraint("Coincident", 8, 2, 9, 1))
sketch5.addConstraint(Sketcher.Constraint("Coincident", 9, 2, 10, 1))
sketch5.addConstraint(Sketcher.Constraint("Coincident", 10, 2, 11, 1))
sketch5.addConstraint(Sketcher.Constraint("Coincident", 11, 2, 8, 1))
sketch5.addConstraint(Sketcher.Constraint("Coincident", 12, 2, 13, 1))
sketch5.addConstraint(Sketcher.Constraint("Coincident", 13, 2, 14, 1))
sketch5.addConstraint(Sketcher.Constraint("Coincident", 14, 2, 15, 1))
sketch5.addConstraint(Sketcher.Constraint("Coincident", 15, 2, 12, 1))
sketch5.addConstraint(Sketcher.Constraint("Coincident", 16, 2, 17, 1))
sketch5.addConstraint(Sketcher.Constraint("Coincident", 17, 2, 18, 1))
sketch5.addConstraint(Sketcher.Constraint("Coincident", 18, 2, 19, 1))
sketch5.addConstraint(Sketcher.Constraint("Coincident", 19, 2, 16, 1))
sketch5.addConstraint(Sketcher.Constraint("Tangent", 20, 1, 21, 1))
sketch5.addConstraint(Sketcher.Constraint("Tangent", 21, 2, 22, 2))
sketch5.addConstraint(Sketcher.Constraint("Tangent", 22, 1, 23, 1))
sketch5.addConstraint(Sketcher.Constraint("Tangent", 23, 2, 20, 2))
sketch5.addConstraint(Sketcher.Constraint("Tangent", 24, 2, 25, 1))
sketch5.addConstraint(Sketcher.Constraint("Tangent", 25, 2, 26, 1))
sketch5.addConstraint(Sketcher.Constraint("Tangent", 26, 2, 27, 1))
sketch5.addConstraint(Sketcher.Constraint("Tangent", 27, 2, 24, 1))
sketch5.addConstraint(Sketcher.Constraint("Horizontal", 0))
sketch5.addConstraint(Sketcher.Constraint("Vertical", 1))
sketch5.addConstraint(Sketcher.Constraint("Horizontal", 2))
sketch5.addConstraint(Sketcher.Constraint("Vertical", 3))
sketch5.addConstraint(Sketcher.Constraint("Horizontal", 4))
sketch5.addConstraint(Sketcher.Constraint("Vertical", 5))
sketch5.addConstraint(Sketcher.Constraint("Horizontal", 6))
sketch5.addConstraint(Sketcher.Constraint("Vertical", 7))
sketch5.addConstraint(Sketcher.Constraint("Vertical", 8))
sketch5.addConstraint(Sketcher.Constraint("Horizontal", 9))
sketch5.addConstraint(Sketcher.Constraint("Vertical", 10))
sketch5.addConstraint(Sketcher.Constraint("Horizontal", 11))
sketch5.addConstraint(Sketcher.Constraint("Vertical", 12))
sketch5.addConstraint(Sketcher.Constraint("Horizontal", 13))
sketch5.addConstraint(Sketcher.Constraint("Vertical", 14))
sketch5.addConstraint(Sketcher.Constraint("Horizontal", 15))
sketch5.addConstraint(Sketcher.Constraint("Horizontal", 16))
sketch5.addConstraint(Sketcher.Constraint("Vertical", 17))
sketch5.addConstraint(Sketcher.Constraint("Horizontal", 18))
sketch5.addConstraint(Sketcher.Constraint("Vertical", 19))
sketch5.addConstraint(Sketcher.Constraint("Horizontal", 21))
sketch5.addConstraint(Sketcher.Constraint("Horizontal", 23))
sketch5.addConstraint(Sketcher.Constraint("Horizontal", 24))
sketch5.addConstraint(Sketcher.Constraint("Horizontal", 26))
sketch5.addConstraint(Sketcher.Constraint("Coincident", 25, 3, 20, 3))
sketch5.addConstraint(Sketcher.Constraint("Horizontal", 3, 2, 12, 2))
sketch5.addConstraint(Sketcher.Constraint("Horizontal", 7, 2, 16, 2))
sketch5.addConstraint(Sketcher.Constraint("Horizontal", 13, 2, 20, 1))
sketch5.addConstraint(Sketcher.Constraint("Vertical", 5, 2, 8, 2))
sketch5.addConstraint(Sketcher.Constraint("Vertical", 7, 2, 9, 2))
sketch5.addConstraint(Sketcher.Constraint("Vertical", 27, 3, 21, 2))
sketch5.addConstraint(Sketcher.Constraint("Equal", 7, 8))
sketch5.addConstraint(Sketcher.Constraint("DistanceX", 0, 2, 0, 1, Q("14 mm")))
sketch5.addConstraint(Sketcher.Constraint("DistanceX", 4, 1, 4, 2, Q("12 mm")))
sketch5.addConstraint(Sketcher.Constraint("DistanceX", 13, 2, 13, 1, Q("51 mm")))
sketch5.addConstraint(Sketcher.Constraint("DistanceX", 16, 1, 16, 2, Q("49 mm")))
sketch5.addConstraint(Sketcher.Constraint("DistanceY", 1, 1, 1, 2, Q("16 mm")))
sketch5.addConstraint(Sketcher.Constraint("DistanceY", 5, 1, 5, 2, Q("6 mm")))
sketch5.addConstraint(Sketcher.Constraint("DistanceY", 12, 2, 12, 1, Q("6.2 mm")))
sketch5.addConstraint(Sketcher.Constraint("DistanceY", 17, 1, 17, 2, Q("4.2 mm")))
sketch5.addConstraint(Sketcher.Constraint("DistanceX", -1, 1, 0, 2, Q("27 mm")))
sketch5.addConstraint(Sketcher.Constraint("DistanceX", -1, 1, 4, 2, Q("40 mm")))
sketch5.addConstraint(Sketcher.Constraint("DistanceX", -1, 1, 12, 2, Q("23 mm")))
sketch5.addConstraint(Sketcher.Constraint("DistanceX", -1, 1, 16, 2, Q("22 mm")))
sketch5.addConstraint(Sketcher.Constraint("Radius", 20, Q("1.625 mm")))
sketch5.addConstraint(Sketcher.Constraint("Radius", 25, Q("1.125 mm")))
sketch5.addConstraint(Sketcher.Constraint("DistanceY", 3, 2, 4, 2, Q("1 mm")))
sketch5.addConstraint(Sketcher.Constraint("DistanceY", 8, 2, 2, 2, Q("1 mm")))
sketch5.addConstraint(Sketcher.Constraint("DistanceX", 21, 2, 21, 1, Q("5.75 mm")))
sketch5.addConstraint(Sketcher.Constraint("DistanceY", -1, 1, 0, 2, Q("1.57 mm")))
sketch5.addConstraint(Sketcher.Constraint("DistanceX", 20, 3, -1, 1, Q("44.125 mm")))
sketch5.setExpression("Constraints[60]", "Params.sketch5_width")
sketch5.setExpression("Constraints[61]", "Params.sketch5_width2")
sketch5.setExpression("Constraints[62]", "Params.sketch5_width3")
sketch5.setExpression("Constraints[63]", "Params.sketch5_width4")
sketch5.setExpression("Constraints[64]", "Params.sketch5_height")
pad5 = body3.newObject("PartDesign::Pad", "Pad004")
pad5.Profile = sketch5
pad5.setExpression("Length", "Params.pad5_length")

doc.recompute()
